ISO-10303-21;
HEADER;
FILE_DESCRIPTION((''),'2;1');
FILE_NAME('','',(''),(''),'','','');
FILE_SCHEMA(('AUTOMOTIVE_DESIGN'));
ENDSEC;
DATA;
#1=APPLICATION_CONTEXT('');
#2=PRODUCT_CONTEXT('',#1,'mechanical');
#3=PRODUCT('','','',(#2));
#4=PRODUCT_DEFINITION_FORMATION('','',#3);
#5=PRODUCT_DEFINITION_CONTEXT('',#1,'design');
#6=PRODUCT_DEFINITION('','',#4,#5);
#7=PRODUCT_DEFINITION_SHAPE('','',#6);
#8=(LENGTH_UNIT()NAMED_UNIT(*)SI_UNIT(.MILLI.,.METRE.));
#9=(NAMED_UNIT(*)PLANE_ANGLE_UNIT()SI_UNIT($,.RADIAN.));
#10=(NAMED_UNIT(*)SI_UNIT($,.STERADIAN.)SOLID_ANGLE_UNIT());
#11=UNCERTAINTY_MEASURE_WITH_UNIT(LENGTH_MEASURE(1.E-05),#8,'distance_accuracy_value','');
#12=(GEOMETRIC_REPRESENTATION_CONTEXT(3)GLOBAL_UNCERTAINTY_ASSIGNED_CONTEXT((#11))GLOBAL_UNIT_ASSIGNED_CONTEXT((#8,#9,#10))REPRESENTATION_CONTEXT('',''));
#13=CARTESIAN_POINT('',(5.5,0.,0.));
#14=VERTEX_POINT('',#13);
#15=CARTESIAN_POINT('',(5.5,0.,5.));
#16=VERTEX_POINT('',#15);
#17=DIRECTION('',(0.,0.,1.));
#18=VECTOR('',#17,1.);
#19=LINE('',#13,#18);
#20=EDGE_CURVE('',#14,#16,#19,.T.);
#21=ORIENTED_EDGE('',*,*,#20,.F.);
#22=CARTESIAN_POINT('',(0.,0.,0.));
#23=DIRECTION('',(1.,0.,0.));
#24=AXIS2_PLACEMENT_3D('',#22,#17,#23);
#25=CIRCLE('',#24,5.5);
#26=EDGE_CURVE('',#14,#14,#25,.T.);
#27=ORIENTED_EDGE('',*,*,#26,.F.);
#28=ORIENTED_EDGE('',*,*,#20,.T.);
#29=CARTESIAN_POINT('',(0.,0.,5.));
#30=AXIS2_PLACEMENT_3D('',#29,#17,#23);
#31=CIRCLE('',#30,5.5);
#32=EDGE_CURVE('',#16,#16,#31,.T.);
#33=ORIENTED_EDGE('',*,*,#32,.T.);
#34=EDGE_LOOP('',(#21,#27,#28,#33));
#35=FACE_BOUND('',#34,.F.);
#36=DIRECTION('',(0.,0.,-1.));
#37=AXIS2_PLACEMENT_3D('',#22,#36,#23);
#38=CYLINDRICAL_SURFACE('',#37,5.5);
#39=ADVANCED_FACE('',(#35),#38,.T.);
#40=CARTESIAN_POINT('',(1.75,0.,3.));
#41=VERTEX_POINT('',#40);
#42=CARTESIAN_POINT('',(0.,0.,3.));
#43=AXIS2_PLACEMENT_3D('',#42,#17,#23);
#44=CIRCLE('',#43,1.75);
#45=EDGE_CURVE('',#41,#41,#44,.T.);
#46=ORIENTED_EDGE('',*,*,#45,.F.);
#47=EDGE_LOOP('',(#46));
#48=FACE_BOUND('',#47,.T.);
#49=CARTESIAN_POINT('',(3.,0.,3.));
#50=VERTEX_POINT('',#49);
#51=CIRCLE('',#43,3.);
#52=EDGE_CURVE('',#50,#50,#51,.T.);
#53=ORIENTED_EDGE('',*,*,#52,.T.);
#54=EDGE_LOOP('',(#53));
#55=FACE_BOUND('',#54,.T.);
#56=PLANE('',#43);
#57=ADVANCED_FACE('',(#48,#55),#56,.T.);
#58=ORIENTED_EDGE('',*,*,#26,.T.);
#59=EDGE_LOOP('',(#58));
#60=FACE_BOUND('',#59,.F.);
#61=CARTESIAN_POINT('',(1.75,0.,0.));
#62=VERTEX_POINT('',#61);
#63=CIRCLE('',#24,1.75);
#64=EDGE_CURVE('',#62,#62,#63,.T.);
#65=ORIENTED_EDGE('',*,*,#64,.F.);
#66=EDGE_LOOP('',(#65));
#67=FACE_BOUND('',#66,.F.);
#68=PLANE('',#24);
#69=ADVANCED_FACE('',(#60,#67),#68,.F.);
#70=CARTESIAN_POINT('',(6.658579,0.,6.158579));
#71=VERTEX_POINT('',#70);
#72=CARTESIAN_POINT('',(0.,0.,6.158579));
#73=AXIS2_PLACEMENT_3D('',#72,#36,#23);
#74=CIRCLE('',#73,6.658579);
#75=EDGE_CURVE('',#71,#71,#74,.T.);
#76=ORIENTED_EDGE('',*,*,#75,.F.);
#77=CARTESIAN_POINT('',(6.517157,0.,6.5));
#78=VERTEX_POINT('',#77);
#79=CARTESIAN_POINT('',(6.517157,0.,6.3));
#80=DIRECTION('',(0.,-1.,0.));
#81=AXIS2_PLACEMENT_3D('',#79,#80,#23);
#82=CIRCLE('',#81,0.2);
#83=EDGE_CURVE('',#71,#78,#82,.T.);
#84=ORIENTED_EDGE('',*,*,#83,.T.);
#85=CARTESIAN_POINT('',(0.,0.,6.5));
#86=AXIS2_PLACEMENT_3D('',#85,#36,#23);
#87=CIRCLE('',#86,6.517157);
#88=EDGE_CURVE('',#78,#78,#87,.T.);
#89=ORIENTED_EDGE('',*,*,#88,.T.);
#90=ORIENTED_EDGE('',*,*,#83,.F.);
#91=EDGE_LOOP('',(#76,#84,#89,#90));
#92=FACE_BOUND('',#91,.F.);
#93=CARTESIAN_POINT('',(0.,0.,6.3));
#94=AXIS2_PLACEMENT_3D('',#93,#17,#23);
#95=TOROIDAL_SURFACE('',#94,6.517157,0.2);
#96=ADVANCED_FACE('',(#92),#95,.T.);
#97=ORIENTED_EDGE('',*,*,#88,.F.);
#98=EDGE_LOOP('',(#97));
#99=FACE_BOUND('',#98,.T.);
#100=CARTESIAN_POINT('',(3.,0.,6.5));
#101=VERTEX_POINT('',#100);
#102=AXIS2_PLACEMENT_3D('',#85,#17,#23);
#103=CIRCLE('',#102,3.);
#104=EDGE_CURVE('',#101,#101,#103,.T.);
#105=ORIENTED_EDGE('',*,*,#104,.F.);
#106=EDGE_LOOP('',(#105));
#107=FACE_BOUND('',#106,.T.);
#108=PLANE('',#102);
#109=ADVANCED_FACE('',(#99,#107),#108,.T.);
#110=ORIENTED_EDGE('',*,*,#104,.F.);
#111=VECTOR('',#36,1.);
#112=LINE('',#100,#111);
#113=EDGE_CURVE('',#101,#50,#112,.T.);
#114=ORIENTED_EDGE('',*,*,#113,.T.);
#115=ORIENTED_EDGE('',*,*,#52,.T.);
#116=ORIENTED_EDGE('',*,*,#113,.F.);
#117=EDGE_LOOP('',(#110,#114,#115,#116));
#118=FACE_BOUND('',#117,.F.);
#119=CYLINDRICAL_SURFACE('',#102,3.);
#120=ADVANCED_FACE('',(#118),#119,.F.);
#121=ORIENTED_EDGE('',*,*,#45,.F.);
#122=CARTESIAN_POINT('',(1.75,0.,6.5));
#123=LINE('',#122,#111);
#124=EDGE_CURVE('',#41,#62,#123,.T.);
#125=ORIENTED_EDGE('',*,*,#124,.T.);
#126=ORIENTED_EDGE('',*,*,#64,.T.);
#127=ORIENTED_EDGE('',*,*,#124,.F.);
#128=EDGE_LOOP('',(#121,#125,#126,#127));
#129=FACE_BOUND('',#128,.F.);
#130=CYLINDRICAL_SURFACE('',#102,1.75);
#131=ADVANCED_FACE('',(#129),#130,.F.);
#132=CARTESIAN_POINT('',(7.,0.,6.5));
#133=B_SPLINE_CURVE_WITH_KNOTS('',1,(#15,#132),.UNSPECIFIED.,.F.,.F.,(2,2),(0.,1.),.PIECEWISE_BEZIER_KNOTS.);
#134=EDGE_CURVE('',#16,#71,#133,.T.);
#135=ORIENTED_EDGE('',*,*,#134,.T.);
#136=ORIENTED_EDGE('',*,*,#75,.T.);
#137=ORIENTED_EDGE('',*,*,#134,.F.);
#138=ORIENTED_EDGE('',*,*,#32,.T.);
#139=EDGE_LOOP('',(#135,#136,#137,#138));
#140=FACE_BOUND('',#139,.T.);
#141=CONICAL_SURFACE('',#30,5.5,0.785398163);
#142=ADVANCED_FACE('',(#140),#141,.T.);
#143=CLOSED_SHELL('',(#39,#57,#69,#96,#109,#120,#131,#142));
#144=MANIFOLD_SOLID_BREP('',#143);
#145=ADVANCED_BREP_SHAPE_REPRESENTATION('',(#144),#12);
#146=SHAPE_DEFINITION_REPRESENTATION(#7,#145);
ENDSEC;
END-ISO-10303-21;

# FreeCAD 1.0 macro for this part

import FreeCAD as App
import Part
import Sketcher

V = App.Vector
Q = App.Units.Quantity


def edges_at(feature, points):
    """Names of the edges that pass closest to the given points."""
    edges = feature.Shape.Edges
    near = lambda p: min(range(len(edges)), key=lambda i: edges[i].distToShape(Part.Vertex(*p))[0])
    return sorted({f"Edge{near(p) + 1}" for p in points})

doc = App.newDocument("Part")
body = doc.addObject("PartDesign::Body", "Body")

sketch1 = body.newObject("Sketcher::SketchObject", "Sketch")
sketch1.AttachmentSupport = (doc.getObject("XY_Plane"), [""])
sketch1.MapMode = "FlatFace"
sketch1.addGeometry(Part.Circle(V(0, 0, 0), V(0, 0, 1), 6), False)
sketch1.addConstraint([
    Sketcher.Constraint("Coincident", 0, 3, -1, 1),
    Sketcher.Constraint("Diameter", 0, Q("11 mm")),
])
pad1 = body.newObject("PartDesign::Pad", "Pad")
pad1.Profile = sketch1
pad1.Length = 5

sketch2 = body.newObject("Sketcher::SketchObject", "Sketch001")
sketch2.AttachmentSupport = (doc.getObject("XY_Plane"), [""])
sketch2.MapMode = "FlatFace"
sketch2.AttachmentOffset = App.Placement(V(0, 0, 5), App.Rotation())
sketch2.addGeometry(Part.Circle(V(0, 0, 0), V(0, 0, 1), 6), False)
sketch2.addConstraint([
    Sketcher.Constraint("Coincident", 0, 3, -1, 1),
    Sketcher.Constraint("Diameter", 0, Q("11 mm")),
])
pad2 = body.newObject("PartDesign::Pad", "Pad001")
pad2.Profile = sketch2
pad2.Length = 1.5
pad2.TaperAngle = 45
doc.recompute()

fillet = body.newObject("PartDesign::Fillet", "Fillet")
fillet.Base = (pad2, edges_at(pad2, [(-7, 0, 6.5)]))
fillet.Radius = 0.2

sketch3 = body.newObject("Sketcher::SketchObject", "Sketch002")
sketch3.AttachmentSupport = (doc.getObject("XY_Plane"), [""])
sketch3.MapMode = "FlatFace"
sketch3.AttachmentOffset = App.Placement(V(0, 0, 6.5), App.Rotation())
sketch3.addGeometry(Part.Circle(V(0, 0, 0), V(0, 0, 1), 1.8), False)
sketch3.addConstraint([
    Sketcher.Constraint("Coincident", 0, 3, -1, 1),
    Sketcher.Constraint("Diameter", 0, Q("3.5 mm")),
])
pocket1 = body.newObject("PartDesign::Pocket", "Pocket")
pocket1.Profile = sketch3
pocket1.Type = "ThroughAll"

sketch4 = body.newObject("Sketcher::SketchObject", "Sketch003")
sketch4.AttachmentSupport = (doc.getObject("XY_Plane"), [""])
sketch4.MapMode = "FlatFace"
sketch4.AttachmentOffset = App.Placement(V(0, 0, 6.5), App.Rotation())
sketch4.addGeometry([
    Part.Circle(V(0, 0, 0), V(0, 0, 1), 3),
    Part.Circle(V(0, 0, 0), V(0, 0, 1), 1.8),
], False)
sketch4.addConstraint([
    Sketcher.Constraint("Coincident", 0, 3, -1, 1),
    Sketcher.Constraint("Coincident", 1, 3, -1, 1),
    Sketcher.Constraint("Diameter", 0, Q("6 mm")),
    Sketcher.Constraint("Diameter", 1, Q("3.5 mm")),
])
pocket2 = body.newObject("PartDesign::Pocket", "Pocket001")
pocket2.Profile = sketch4
pocket2.Length = 3.5

doc.recompute()
